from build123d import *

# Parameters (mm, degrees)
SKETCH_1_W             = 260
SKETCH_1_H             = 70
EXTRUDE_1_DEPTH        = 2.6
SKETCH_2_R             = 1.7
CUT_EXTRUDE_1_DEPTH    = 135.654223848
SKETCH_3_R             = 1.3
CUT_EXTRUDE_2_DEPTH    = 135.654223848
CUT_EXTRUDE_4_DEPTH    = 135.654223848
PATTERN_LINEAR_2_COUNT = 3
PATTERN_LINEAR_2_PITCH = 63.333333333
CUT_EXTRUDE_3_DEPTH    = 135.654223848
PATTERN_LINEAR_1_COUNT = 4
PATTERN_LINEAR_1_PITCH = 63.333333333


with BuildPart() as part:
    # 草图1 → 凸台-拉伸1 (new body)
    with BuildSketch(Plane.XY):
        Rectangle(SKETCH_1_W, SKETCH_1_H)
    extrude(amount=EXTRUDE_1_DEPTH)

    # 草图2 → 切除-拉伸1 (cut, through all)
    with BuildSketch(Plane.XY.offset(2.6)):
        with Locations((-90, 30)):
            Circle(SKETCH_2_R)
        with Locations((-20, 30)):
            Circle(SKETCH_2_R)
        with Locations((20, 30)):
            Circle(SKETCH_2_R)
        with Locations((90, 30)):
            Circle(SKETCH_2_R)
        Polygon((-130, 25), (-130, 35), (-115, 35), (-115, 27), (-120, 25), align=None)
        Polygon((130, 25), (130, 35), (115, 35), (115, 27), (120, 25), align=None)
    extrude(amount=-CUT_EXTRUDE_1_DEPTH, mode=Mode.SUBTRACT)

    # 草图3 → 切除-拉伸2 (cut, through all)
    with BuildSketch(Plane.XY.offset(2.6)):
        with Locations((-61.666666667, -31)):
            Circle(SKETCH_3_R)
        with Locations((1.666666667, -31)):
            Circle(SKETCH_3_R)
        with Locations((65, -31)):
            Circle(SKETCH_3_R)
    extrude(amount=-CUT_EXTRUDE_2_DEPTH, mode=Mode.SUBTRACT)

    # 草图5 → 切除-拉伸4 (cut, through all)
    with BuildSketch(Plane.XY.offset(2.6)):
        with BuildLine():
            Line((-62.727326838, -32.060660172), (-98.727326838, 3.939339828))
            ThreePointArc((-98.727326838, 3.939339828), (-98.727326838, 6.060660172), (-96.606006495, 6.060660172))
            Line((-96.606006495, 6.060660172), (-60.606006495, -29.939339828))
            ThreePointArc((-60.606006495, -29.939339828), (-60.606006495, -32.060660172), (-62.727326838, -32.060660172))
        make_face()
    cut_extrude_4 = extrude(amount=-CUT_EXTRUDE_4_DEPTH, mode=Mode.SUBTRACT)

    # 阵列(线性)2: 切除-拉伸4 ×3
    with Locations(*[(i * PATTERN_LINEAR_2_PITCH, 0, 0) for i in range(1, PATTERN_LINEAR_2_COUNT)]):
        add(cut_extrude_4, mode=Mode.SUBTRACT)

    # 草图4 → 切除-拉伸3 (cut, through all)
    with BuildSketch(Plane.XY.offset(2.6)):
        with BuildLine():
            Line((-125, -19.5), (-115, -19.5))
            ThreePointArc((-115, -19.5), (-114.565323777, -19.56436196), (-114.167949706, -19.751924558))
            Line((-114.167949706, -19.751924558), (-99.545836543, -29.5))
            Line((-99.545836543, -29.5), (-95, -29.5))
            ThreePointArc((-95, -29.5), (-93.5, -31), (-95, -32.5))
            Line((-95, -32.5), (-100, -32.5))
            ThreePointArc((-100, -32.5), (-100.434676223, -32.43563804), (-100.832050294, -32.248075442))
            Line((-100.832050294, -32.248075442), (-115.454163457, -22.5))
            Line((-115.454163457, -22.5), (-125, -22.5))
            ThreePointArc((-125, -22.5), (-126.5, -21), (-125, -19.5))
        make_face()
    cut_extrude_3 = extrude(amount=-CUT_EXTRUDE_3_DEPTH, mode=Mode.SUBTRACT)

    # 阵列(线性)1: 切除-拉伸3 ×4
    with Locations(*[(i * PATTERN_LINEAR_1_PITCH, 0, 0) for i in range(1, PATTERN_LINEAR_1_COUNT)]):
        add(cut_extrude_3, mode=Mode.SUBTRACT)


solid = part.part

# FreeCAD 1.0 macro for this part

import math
import FreeCAD as App
import Part
import Sketcher
from FreeCAD import Vector
Q = App.Units.Quantity

doc = App.newDocument("Part")
body = doc.addObject("PartDesign::Body", "Body")

# Sketch on XY plane
sketch1 = doc.addObject("Sketcher::SketchObject", "Sketch")
body.addObject(sketch1)
sketch1.AttachmentSupport = (doc.XY_Plane, [""])
sketch1.MapMode = "FlatFace"
sketch1.addGeometry(Part.LineSegment(Vector(-130, 35, 0), Vector(-130, -35, 0)), False)
sketch1.addGeometry(Part.LineSegment(Vector(-130, -35, 0), Vector(130, -35, 0)), False)
sketch1.addGeometry(Part.LineSegment(Vector(130, -35, 0), Vector(130, 35, 0)), False)
sketch1.addGeometry(Part.LineSegment(Vector(130, 35, 0), Vector(-130, 35, 0)), False)
sketch1.addConstraint(Sketcher.Constraint("Coincident", 0, 2, 1, 1))
sketch1.addConstraint(Sketcher.Constraint("Coincident", 1, 2, 2, 1))
sketch1.addConstraint(Sketcher.Constraint("Coincident", 2, 2, 3, 1))
sketch1.addConstraint(Sketcher.Constraint("Coincident", 3, 2, 0, 1))
sketch1.addConstraint(Sketcher.Constraint("Vertical", 0))
sketch1.addConstraint(Sketcher.Constraint("Horizontal", 1))
sketch1.addConstraint(Sketcher.Constraint("Vertical", 2))
sketch1.addConstraint(Sketcher.Constraint("Horizontal", 3))
sketch1.addConstraint(Sketcher.Constraint("Symmetric", 0, 2, 2, 2, -1, 1))
sketch1.addConstraint(Sketcher.Constraint("DistanceX", 1, 1, 1, 2, 260.0))
sketch1.addConstraint(Sketcher.Constraint("DistanceY", 0, 2, 0, 1, 70.0))
pad1 = doc.addObject("PartDesign::Pad", "Pad")
body.addObject(pad1)
pad1.Profile = sketch1
pad1.Length = 2.6

# Sketch on XY plane
sketch2 = doc.addObject("Sketcher::SketchObject", "Sketch001")
body.addObject(sketch2)
sketch2.AttachmentSupport = (doc.XY_Plane, [""])
sketch2.MapMode = "FlatFace"
sketch2.AttachmentOffset = App.Placement(Vector(0, 0, 2.6), App.Rotation())
sketch2.addGeometry(Part.Circle(Vector(-90, 30, 0), Vector(0, 0, 1), 1.7), False)
sketch2.addGeometry(Part.Circle(Vector(-20, 30, 0), Vector(0, 0, 1), 1.7), False)
sketch2.addGeometry(Part.Circle(Vector(20, 30, 0), Vector(0, 0, 1), 1.7), False)
sketch2.addGeometry(Part.Circle(Vector(90, 30, 0), Vector(0, 0, 1), 1.7), False)
sketch2.addGeometry(Part.LineSegment(Vector(-130, 35, 0), Vector(-130, 25, 0)), False)
sketch2.addGeometry(Part.LineSegment(Vector(-130, 25, 0), Vector(-120, 25, 0)), False)
sketch2.addGeometry(Part.LineSegment(Vector(-120, 25, 0), Vector(-115, 27, 0)), False)
sketch2.addGeometry(Part.LineSegment(Vector(-115, 27, 0), Vector(-115, 35, 0)), False)
sketch2.addGeometry(Part.LineSegment(Vector(-115, 35, 0), Vector(-130, 35, 0)), False)
sketch2.addGeometry(Part.LineSegment(Vector(130, 25, 0), Vector(130, 35, 0)), False)
sketch2.addGeometry(Part.LineSegment(Vector(130, 35, 0), Vector(115, 35, 0)), False)
sketch2.addGeometry(Part.LineSegment(Vector(115, 35, 0), Vector(115, 27, 0)), False)
sketch2.addGeometry(Part.LineSegment(Vector(115, 27, 0), Vector(120, 25, 0)), False)
sketch2.addGeometry(Part.LineSegment(Vector(120, 25, 0), Vector(130, 25, 0)), False)
sketch2.addConstraint(Sketcher.Constraint("Coincident", 4, 2, 5, 1))
sketch2.addConstraint(Sketcher.Constraint("Coincident", 5, 2, 6, 1))
sketch2.addConstraint(Sketcher.Constraint("Coincident", 6, 2, 7, 1))
sketch2.addConstraint(Sketcher.Constraint("Coincident", 7, 2, 8, 1))
sketch2.addConstraint(Sketcher.Constraint("Coincident", 8, 2, 4, 1))
sketch2.addConstraint(Sketcher.Constraint("Coincident", 9, 2, 10, 1))
sketch2.addConstraint(Sketcher.Constraint("Coincident", 10, 2, 11, 1))
sketch2.addConstraint(Sketcher.Constraint("Coincident", 11, 2, 12, 1))
sketch2.addConstraint(Sketcher.Constraint("Coincident", 12, 2, 13, 1))
sketch2.addConstraint(Sketcher.Constraint("Coincident", 13, 2, 9, 1))
sketch2.addConstraint(Sketcher.Constraint("Vertical", 4))
sketch2.addConstraint(Sketcher.Constraint("Horizontal", 5))
sketch2.addConstraint(Sketcher.Constraint("Vertical", 7))
sketch2.addConstraint(Sketcher.Constraint("Horizontal", 8))
sketch2.addConstraint(Sketcher.Constraint("Vertical", 9))
sketch2.addConstraint(Sketcher.Constraint("Horizontal", 10))
sketch2.addConstraint(Sketcher.Constraint("Vertical", 11))
sketch2.addConstraint(Sketcher.Constraint("Horizontal", 13))
sketch2.addConstraint(Sketcher.Constraint("Equal", 0, 1))
sketch2.addConstraint(Sketcher.Constraint("Equal", 1, 2))
sketch2.addConstraint(Sketcher.Constraint("Equal", 2, 3))
sketch2.addConstraint(Sketcher.Constraint("Symmetric", 1, 3, 2, 3, -2))
sketch2.addConstraint(Sketcher.Constraint("Symmetric", 0, 3, 3, 3, -2))
sketch2.addConstraint(Sketcher.Constraint("Symmetric", 8, 2, 9, 2, -2))
sketch2.addConstraint(Sketcher.Constraint("Symmetric", 6, 2, 11, 2, -2))
sketch2.addConstraint(Sketcher.Constraint("Symmetric", 5, 2, 12, 2, -2))
sketch2.addConstraint(Sketcher.Constraint("Horizontal", 0, 3, 1, 3))
sketch2.addConstraint(Sketcher.Constraint("Equal", 13, 4))
sketch2.addConstraint(Sketcher.Constraint("Diameter", 0, 3.4))
sketch2.addConstraint(Sketcher.Constraint("DistanceX", 5, 1, 5, 2, 10.0))
sketch2.addConstraint(Sketcher.Constraint("DistanceX", 8, 2, 8, 1, 15.0))
sketch2.addConstraint(Sketcher.Constraint("DistanceY", 7, 1, 7, 2, 8.0))
sketch2.addConstraint(Sketcher.Constraint("DistanceX", 0, 3, -1, 1, 90.0))
sketch2.addConstraint(Sketcher.Constraint("DistanceY", -1, 1, 0, 3, 30.0))
sketch2.addConstraint(Sketcher.Constraint("DistanceX", 1, 3, -1, 1, 20.0))
sketch2.addConstraint(Sketcher.Constraint("DistanceX", 4, 2, -1, 1, 130.0))
sketch2.addConstraint(Sketcher.Constraint("DistanceY", -1, 1, 4, 2, 25.0))
pocket1 = doc.addObject("PartDesign::Pocket", "Pocket")
body.addObject(pocket1)
pocket1.Profile = sketch2
pocket1.Type = "ThroughAll"

# Sketch on XY plane
sketch3 = doc.addObject("Sketcher::SketchObject", "Sketch002")
body.addObject(sketch3)
sketch3.AttachmentSupport = (doc.XY_Plane, [""])
sketch3.MapMode = "FlatFace"
sketch3.AttachmentOffset = App.Placement(Vector(0, 0, 2.6), App.Rotation())
sketch3.addGeometry(Part.Circle(Vector(-61.666667, -31, 0), Vector(0, 0, 1), 1.3), False)
sketch3.addGeometry(Part.Circle(Vector(1.666667, -31, 0), Vector(0, 0, 1), 1.3), False)
sketch3.addGeometry(Part.Circle(Vector(65, -31, 0), Vector(0, 0, 1), 1.3), False)
sketch3.addConstraint(Sketcher.Constraint("Equal", 0, 1))
sketch3.addConstraint(Sketcher.Constraint("Equal", 1, 2))
sketch3.addConstraint(Sketcher.Constraint("Horizontal", 0, 3, 1, 3))
sketch3.addConstraint(Sketcher.Constraint("Horizontal", 1, 3, 2, 3))
sketch3.addConstraint(Sketcher.Constraint("Diameter", 0, 2.6))
sketch3.addConstraint(Sketcher.Constraint("DistanceY", 0, 3, -1, 1, 31.0))
sketch3.addConstraint(Sketcher.Constraint("DistanceX", -1, 1, 2, 3, 65.0))
sketch3.addConstraint(Sketcher.Constraint("DistanceX", 0, 3, -1, 1, 61.666667))
sketch3.addConstraint(Sketcher.Constraint("DistanceX", -1, 1, 1, 3, 1.666667))
pocket2 = doc.addObject("PartDesign::Pocket", "Pocket001")
body.addObject(pocket2)
pocket2.Profile = sketch3
pocket2.Type = "ThroughAll"

# Sketch on XY plane
sketch4 = doc.addObject("Sketcher::SketchObject", "Sketch003")
body.addObject(sketch4)
sketch4.AttachmentSupport = (doc.XY_Plane, [""])
sketch4.MapMode = "FlatFace"
sketch4.AttachmentOffset = App.Placement(Vector(0, 0, 2.6), App.Rotation())
sketch4.addGeometry(Part.LineSegment(Vector(-98.727327, 3.93934, 0), Vector(-62.727327, -32.06066, 0)), False)
sketch4.addGeometry(Part.ArcOfCircle(Part.Circle(Vector(-61.666667, -31, 0), Vector(0, 0, 1), 1.5), math.radians(-135), math.radians(45)), False)
sketch4.addGeometry(Part.LineSegment(Vector(-60.606006, -29.93934, 0), Vector(-96.606006, 6.06066, 0)), False)
sketch4.addGeometry(Part.ArcOfCircle(Part.Circle(Vector(-97.666667, 5, 0), Vector(0, 0, 1), 1.5), math.radians(45), math.radians(225)), False)
sketch4.addConstraint(Sketcher.Constraint("Tangent", 0, 2, 1, 1))
sketch4.addConstraint(Sketcher.Constraint("Tangent", 1, 2, 2, 1))
sketch4.addConstraint(Sketcher.Constraint("Tangent", 2, 2, 3, 1))
sketch4.addConstraint(Sketcher.Constraint("Tangent", 3, 2, 0, 1))
sketch4.addConstraint(Sketcher.Constraint("Equal", 1, 3))
sketch4.addConstraint(Sketcher.Constraint("Radius", 1, 1.5))
sketch4.addConstraint(Sketcher.Constraint("Angle", 0, Q("-45 deg")))
sketch4.addConstraint(Sketcher.Constraint("DistanceY", 1, 3, -1, 1, 31.0))
sketch4.addConstraint(Sketcher.Constraint("DistanceY", -1, 1, 3, 3, 5.0))
sketch4.addConstraint(Sketcher.Constraint("DistanceX", 1, 3, -1, 1, 61.666667))
pocket3 = doc.addObject("PartDesign::Pocket", "Pocket002")
body.addObject(pocket3)
pocket3.Profile = sketch4
pocket3.Type = "ThroughAll"
doc.recompute()

linearpattern = doc.addObject("PartDesign::LinearPattern", "LinearPattern")
body.addObject(linearpattern)
linearpattern.Originals = [pocket3]
linearpattern.Direction = (doc.X_Axis, [""])
linearpattern.Mode = "offset"
linearpattern.Offset = 63.333333
linearpattern.Occurrences = 3
body.Tip = linearpattern

# Sketch on XY plane
sketch5 = doc.addObject("Sketcher::SketchObject", "Sketch004")
body.addObject(sketch5)
sketch5.AttachmentSupport = (doc.XY_Plane, [""])
sketch5.MapMode = "FlatFace"
sketch5.AttachmentOffset = App.Placement(Vector(0, 0, 2.6), App.Rotation())
sketch5.addGeometry(Part.LineSegment(Vector(-115, -19.5, 0), Vector(-125, -19.5, 0)), False)
sketch5.addGeometry(Part.ArcOfCircle(Part.Circle(Vector(-125, -21, 0), Vector(0, 0, 1), 1.5), math.radians(90), math.radians(270)), False)
sketch5.addGeometry(Part.LineSegment(Vector(-125, -22.5, 0), Vector(-115.454163, -22.5, 0)), False)
sketch5.addGeometry(Part.LineSegment(Vector(-115.454163, -22.5, 0), Vector(-100.83205, -32.248075, 0)), False)
sketch5.addGeometry(Part.ArcOfCircle(Part.Circle(Vector(-100, -31, 0), Vector(0, 0, 1), 1.5), math.radians(-123.690068), math.radians(-90)), False)
sketch5.addGeometry(Part.LineSegment(Vector(-100, -32.5, 0), Vector(-95, -32.5, 0)), False)
sketch5.addGeometry(Part.ArcOfCircle(Part.Circle(Vector(-95, -31, 0), Vector(0, 0, 1), 1.5), math.radians(-90), math.radians(90)), False)
sketch5.addGeometry(Part.LineSegment(Vector(-95, -29.5, 0), Vector(-99.545837, -29.5, 0)), False)
sketch5.addGeometry(Part.LineSegment(Vector(-99.545837, -29.5, 0), Vector(-114.16795, -19.751925, 0)), False)
sketch5.addGeometry(Part.ArcOfCircle(Part.Circle(Vector(-115, -21, 0), Vector(0, 0, 1), 1.5), math.radians(56.309932), math.radians(90)), False)
sketch5.addConstraint(Sketcher.Constraint("Tangent", 0, 2, 1, 1))
sketch5.addConstraint(Sketcher.Constraint("Tangent", 1, 2, 2, 1))
sketch5.addConstraint(Sketcher.Constraint("Coincident", 2, 2, 3, 1))
sketch5.addConstraint(Sketcher.Constraint("Tangent", 3, 2, 4, 1))
sketch5.addConstraint(Sketcher.Constraint("Tangent", 4, 2, 5, 1))
sketch5.addConstraint(Sketcher.Constraint("Tangent", 5, 2, 6, 1))
sketch5.addConstraint(Sketcher.Constraint("Tangent", 6, 2, 7, 1))
sketch5.addConstraint(Sketcher.Constraint("Coincident", 7, 2, 8, 1))
sketch5.addConstraint(Sketcher.Constraint("Tangent", 8, 2, 9, 1))
sketch5.addConstraint(Sketcher.Constraint("Tangent", 9, 2, 0, 1))
sketch5.addConstraint(Sketcher.Constraint("Horizontal", 0))
sketch5.addConstraint(Sketcher.Constraint("Horizontal", 2))
sketch5.addConstraint(Sketcher.Constraint("Horizontal", 5))
sketch5.addConstraint(Sketcher.Constraint("Horizontal", 7))
sketch5.addConstraint(Sketcher.Constraint("Equal", 1, 4))
sketch5.addConstraint(Sketcher.Constraint("Equal", 4, 6))
sketch5.addConstraint(Sketcher.Constraint("Equal", 6, 9))
sketch5.addConstraint(Sketcher.Constraint("Parallel", 3, 8))
sketch5.addConstraint(Sketcher.Constraint("Radius", 1, 1.5))
sketch5.addConstraint(Sketcher.Constraint("DistanceX", 0, 2, 0, 1, 10.0))
sketch5.addConstraint(Sketcher.Constraint("DistanceX", 5, 1, 5, 2, 5.0))
sketch5.addConstraint(Sketcher.Constraint("DistanceX", 1, 3, -1, 1, 125.0))
sketch5.addConstraint(Sketcher.Constraint("DistanceY", 1, 3, -1, 1, 21.0))
sketch5.addConstraint(Sketcher.Constraint("DistanceX", 4, 3, -1, 1, 100.0))
sketch5.addConstraint(Sketcher.Constraint("DistanceY", 4, 3, -1, 1, 31.0))
sketch5.addConstraint(Sketcher.Constraint("DistanceX", 2, 1, 2, 2, 9.545837))
pocket4 = doc.addObject("PartDesign::Pocket", "Pocket003")
body.addObject(pocket4)
pocket4.Profile = sketch5
pocket4.Type = "ThroughAll"
doc.recompute()

linearpattern2 = doc.addObject("PartDesign::LinearPattern", "LinearPattern001")
body.addObject(linearpattern2)
linearpattern2.Originals = [pocket4]
linearpattern2.Direction = (doc.X_Axis, [""])
linearpattern2.Mode = "offset"
linearpattern2.Offset = 63.333333
linearpattern2.Occurrences = 4
body.Tip = linearpattern2

doc.recompute()
